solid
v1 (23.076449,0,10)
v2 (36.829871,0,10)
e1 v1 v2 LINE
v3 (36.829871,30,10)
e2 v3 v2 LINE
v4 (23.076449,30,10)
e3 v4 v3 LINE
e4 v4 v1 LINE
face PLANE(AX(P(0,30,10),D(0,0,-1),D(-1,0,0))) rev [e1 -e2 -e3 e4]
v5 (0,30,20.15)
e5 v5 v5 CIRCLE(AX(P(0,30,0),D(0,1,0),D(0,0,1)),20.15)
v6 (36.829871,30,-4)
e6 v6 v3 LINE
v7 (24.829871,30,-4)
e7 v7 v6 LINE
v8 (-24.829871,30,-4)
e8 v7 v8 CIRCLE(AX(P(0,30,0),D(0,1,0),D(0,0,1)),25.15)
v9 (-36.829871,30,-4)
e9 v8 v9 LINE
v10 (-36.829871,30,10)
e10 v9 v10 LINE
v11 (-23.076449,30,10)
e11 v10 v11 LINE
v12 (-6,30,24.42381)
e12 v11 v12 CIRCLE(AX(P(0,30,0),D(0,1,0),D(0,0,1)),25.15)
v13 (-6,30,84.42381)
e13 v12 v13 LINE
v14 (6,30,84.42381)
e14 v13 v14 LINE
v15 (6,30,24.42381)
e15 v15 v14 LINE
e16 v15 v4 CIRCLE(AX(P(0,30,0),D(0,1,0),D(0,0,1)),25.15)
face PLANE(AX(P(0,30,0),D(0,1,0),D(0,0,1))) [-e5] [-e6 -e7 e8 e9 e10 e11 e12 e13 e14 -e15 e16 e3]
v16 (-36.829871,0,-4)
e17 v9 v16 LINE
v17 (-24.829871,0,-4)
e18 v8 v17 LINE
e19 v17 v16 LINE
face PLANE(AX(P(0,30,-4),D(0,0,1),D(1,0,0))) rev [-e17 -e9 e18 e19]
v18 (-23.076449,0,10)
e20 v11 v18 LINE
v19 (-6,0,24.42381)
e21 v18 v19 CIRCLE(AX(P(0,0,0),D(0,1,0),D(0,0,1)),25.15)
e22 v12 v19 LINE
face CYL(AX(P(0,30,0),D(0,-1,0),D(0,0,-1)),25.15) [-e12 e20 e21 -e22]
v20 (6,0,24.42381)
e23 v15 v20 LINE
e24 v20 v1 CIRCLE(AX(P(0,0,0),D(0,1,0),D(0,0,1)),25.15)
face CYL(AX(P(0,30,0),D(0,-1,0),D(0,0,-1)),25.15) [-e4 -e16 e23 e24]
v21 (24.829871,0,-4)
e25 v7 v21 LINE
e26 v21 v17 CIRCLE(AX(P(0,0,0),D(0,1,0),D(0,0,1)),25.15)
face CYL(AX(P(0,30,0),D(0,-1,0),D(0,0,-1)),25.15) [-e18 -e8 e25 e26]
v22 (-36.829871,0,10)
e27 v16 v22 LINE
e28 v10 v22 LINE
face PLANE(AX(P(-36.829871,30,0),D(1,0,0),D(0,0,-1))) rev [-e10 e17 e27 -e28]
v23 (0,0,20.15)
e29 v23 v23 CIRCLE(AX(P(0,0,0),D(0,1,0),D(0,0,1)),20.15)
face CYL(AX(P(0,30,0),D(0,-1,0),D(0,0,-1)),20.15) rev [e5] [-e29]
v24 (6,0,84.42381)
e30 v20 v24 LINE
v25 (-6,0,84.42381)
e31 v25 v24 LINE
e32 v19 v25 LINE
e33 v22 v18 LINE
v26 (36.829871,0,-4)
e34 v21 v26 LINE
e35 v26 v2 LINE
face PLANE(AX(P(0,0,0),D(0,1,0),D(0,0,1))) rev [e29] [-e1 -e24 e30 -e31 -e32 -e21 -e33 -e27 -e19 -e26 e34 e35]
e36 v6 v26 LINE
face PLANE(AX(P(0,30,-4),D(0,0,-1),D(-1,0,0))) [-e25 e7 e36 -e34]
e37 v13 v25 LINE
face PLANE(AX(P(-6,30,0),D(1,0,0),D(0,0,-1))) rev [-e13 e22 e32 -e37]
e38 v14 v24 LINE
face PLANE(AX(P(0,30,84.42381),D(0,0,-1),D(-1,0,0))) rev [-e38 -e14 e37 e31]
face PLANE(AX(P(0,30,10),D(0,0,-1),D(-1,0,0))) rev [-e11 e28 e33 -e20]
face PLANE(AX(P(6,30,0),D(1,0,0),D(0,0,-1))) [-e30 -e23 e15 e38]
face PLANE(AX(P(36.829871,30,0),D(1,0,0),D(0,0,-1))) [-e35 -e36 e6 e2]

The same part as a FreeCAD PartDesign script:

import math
import FreeCAD as App
import Part
import Sketcher
Q = App.Units.Quantity

doc = App.newDocument("Part")
body = doc.addObject("PartDesign::Body", "Body")

sketch1 = body.newObject("Sketcher::SketchObject", "Sketch")
sketch1.AttachmentSupport = (doc.getObject("XZ_Plane"), [""])
sketch1.MapMode = "FlatFace"
sketch1.addGeometry(Part.LineSegment(App.Vector(37, 10, 0), App.Vector(37, -4, 0)), False)
sketch1.addGeometry(Part.LineSegment(App.Vector(37, -4, 0), App.Vector(25, -4, 0)), False)
sketch1.addGeometry(Part.ArcOfCircle(Part.Circle(App.Vector(0, 0, 0), App.Vector(0, 0, 1), 25), math.radians(-171), math.radians(-9)), False)
sketch1.addGeometry(Part.LineSegment(App.Vector(-25, -4, 0), App.Vector(-37, -4, 0)), False)
sketch1.addGeometry(Part.LineSegment(App.Vector(-37, -4, 0), App.Vector(-37, 10, 0)), False)
sketch1.addGeometry(Part.LineSegment(App.Vector(-37, 10, 0), App.Vector(-23, 10, 0)), False)
sketch1.addGeometry(Part.ArcOfCircle(Part.Circle(App.Vector(0, 0, 0), App.Vector(0, 0, 1), 25), math.radians(104), math.radians(157)), False)
sketch1.addGeometry(Part.LineSegment(App.Vector(-6, 24, 0), App.Vector(-6, 84, 0)), False)
sketch1.addGeometry(Part.LineSegment(App.Vector(-6, 84, 0), App.Vector(6, 84, 0)), False)
sketch1.addGeometry(Part.LineSegment(App.Vector(6, 84, 0), App.Vector(6, 24, 0)), False)
sketch1.addGeometry(Part.ArcOfCircle(Part.Circle(App.Vector(0, 0, 0), App.Vector(0, 0, 1), 25), math.radians(23), math.radians(76)), False)
sketch1.addGeometry(Part.LineSegment(App.Vector(23, 10, 0), App.Vector(37, 10, 0)), False)
sketch1.addGeometry(Part.Circle(App.Vector(0, 0, 0), App.Vector(0, 0, 1), 20), False)
sketch1.addConstraint(Sketcher.Constraint("Coincident", 0, 2, 1, 1))
sketch1.addConstraint(Sketcher.Constraint("Coincident", 1, 2, 2, 2))
sketch1.addConstraint(Sketcher.Constraint("Coincident", 2, 1, 3, 1))
sketch1.addConstraint(Sketcher.Constraint("Coincident", 3, 2, 4, 1))
sketch1.addConstraint(Sketcher.Constraint("Coincident", 4, 2, 5, 1))
sketch1.addConstraint(Sketcher.Constraint("Coincident", 5, 2, 6, 2))
sketch1.addConstraint(Sketcher.Constraint("Coincident", 6, 1, 7, 1))
sketch1.addConstraint(Sketcher.Constraint("Coincident", 7, 2, 8, 1))
sketch1.addConstraint(Sketcher.Constraint("Coincident", 8, 2, 9, 1))
sketch1.addConstraint(Sketcher.Constraint("Coincident", 9, 2, 10, 2))
sketch1.addConstraint(Sketcher.Constraint("Coincident", 10, 1, 11, 1))
sketch1.addConstraint(Sketcher.Constraint("Coincident", 11, 2, 0, 1))
sketch1.addConstraint(Sketcher.Constraint("Vertical", 0))
sketch1.addConstraint(Sketcher.Constraint("Horizontal", 1))
sketch1.addConstraint(Sketcher.Constraint("Horizontal", 3))
sketch1.addConstraint(Sketcher.Constraint("Vertical", 4))
sketch1.addConstraint(Sketcher.Constraint("Horizontal", 5))
sketch1.addConstraint(Sketcher.Constraint("Vertical", 7))
sketch1.addConstraint(Sketcher.Constraint("Horizontal", 8))
sketch1.addConstraint(Sketcher.Constraint("Vertical", 9))
sketch1.addConstraint(Sketcher.Constraint("Horizontal", 11))
sketch1.addConstraint(Sketcher.Constraint("Coincident", 2, 3, -1, 1))
sketch1.addConstraint(Sketcher.Constraint("Coincident", 6, 3, -1, 1))
sketch1.addConstraint(Sketcher.Constraint("Coincident", 10, 3, -1, 1))
sketch1.addConstraint(Sketcher.Constraint("Coincident", 12, 3, -1, 1))
sketch1.addConstraint(Sketcher.Constraint("Equal", 2, 6))
sketch1.addConstraint(Sketcher.Constraint("Equal", 6, 10))
sketch1.addConstraint(Sketcher.Constraint("Symmetric", 0, 2, 3, 2, -2))
sketch1.addConstraint(Sketcher.Constraint("Horizontal", 6, 1, 9, 2))
sketch1.addConstraint(Sketcher.Constraint("Horizontal", 5, 2, 10, 1))
sketch1.addConstraint(Sketcher.Constraint("Equal", 3, 8))
sketch1.addConstraint(Sketcher.Constraint("Diameter", 12, Q("40.3 mm")))
sketch1.addConstraint(Sketcher.Constraint("DistanceX", 1, 2, 1, 1, Q("12 mm")))
sketch1.addConstraint(Sketcher.Constraint("DistanceY", 0, 2, 0, 1, Q("14 mm")))
sketch1.addConstraint(Sketcher.Constraint("DistanceY", 7, 1, 7, 2, Q("60 mm")))
sketch1.addConstraint(Sketcher.Constraint("Radius", 2, Q("25.15 mm")))
sketch1.addConstraint(Sketcher.Constraint("DistanceY", 0, 2, -1, 1, Q("4 mm")))
pad1 = body.newObject("PartDesign::Pad", "Pad")
pad1.Profile = sketch1
pad1.Length = 30
pad1.Reversed = True

doc.recompute()
